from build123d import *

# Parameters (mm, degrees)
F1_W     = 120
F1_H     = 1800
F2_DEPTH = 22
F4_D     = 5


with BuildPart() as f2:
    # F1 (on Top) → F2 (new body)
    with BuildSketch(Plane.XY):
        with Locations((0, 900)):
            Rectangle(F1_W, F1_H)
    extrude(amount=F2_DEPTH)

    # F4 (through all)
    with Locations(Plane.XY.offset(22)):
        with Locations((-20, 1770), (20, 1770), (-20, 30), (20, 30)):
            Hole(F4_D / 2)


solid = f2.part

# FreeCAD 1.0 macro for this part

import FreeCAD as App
import Part
import Sketcher
Q = App.Units.Quantity

doc = App.newDocument("Part")
params = doc.addObject("Spreadsheet::Sheet", "Params")
for row, (alias, value) in enumerate([
    ("sketch1_width", "120 mm"),
    ("sketch1_height", "1800 mm"),
    ("pad1_length", "22 mm"),
    ("sketch2_diameter", "5 mm"),
    ("hole_diameter", "5 mm"),
], start=1):
    params.set(f"A{row}", alias)
    params.set(f"B{row}", "=" + value)
    params.setAlias(f"B{row}", alias)

body = doc.addObject("PartDesign::Body", "Body")

# Sketch on XY plane
sketch1 = doc.addObject("Sketcher::SketchObject", "Sketch")
body.addObject(sketch1)
sketch1.AttachmentSupport = (doc.XY_Plane, [""])
sketch1.MapMode = "FlatFace"
sketch1.addGeometry([
    Part.LineSegment(App.Vector(-60, 1800, 0), App.Vector(-60, 0, 0)),
    Part.LineSegment(App.Vector(-60, 0, 0), App.Vector(60, 0, 0)),
    Part.LineSegment(App.Vector(60, 0, 0), App.Vector(60, 1800, 0)),
    Part.LineSegment(App.Vector(60, 1800, 0), App.Vector(-60, 1800, 0)),
], False)
sketch1.addConstraint([
    Sketcher.Constraint("Coincident", 0, 2, 1, 1),
    Sketcher.Constraint("Coincident", 1, 2, 2, 1),
    Sketcher.Constraint("Coincident", 2, 2, 3, 1),
    Sketcher.Constraint("Coincident", 3, 2, 0, 1),
    Sketcher.Constraint("Vertical", 0),
    Sketcher.Constraint("Horizontal", 1),
    Sketcher.Constraint("Vertical", 2),
    Sketcher.Constraint("Horizontal", 3),
    Sketcher.Constraint("Symmetric", 0, 2, 1, 2, -1, 1),
    Sketcher.Constraint("DistanceX", 1, 1, 1, 2, Q("120 mm")),
    Sketcher.Constraint("DistanceY", 0, 2, 0, 1, Q("1800 mm")),
])
sketch1.setExpression("Constraints[9]", "Params.sketch1_width")
sketch1.setExpression("Constraints[10]", "Params.sketch1_height")
pad1 = doc.addObject("PartDesign::Pad", "Pad")
body.addObject(pad1)
pad1.Profile = sketch1
pad1.setExpression("Length", "Params.pad1_length")

# Sketch on XY plane
sketch2 = doc.addObject("Sketcher::SketchObject", "Sketch001")
body.addObject(sketch2)
sketch2.AttachmentSupport = (doc.XY_Plane, [""])
sketch2.MapMode = "FlatFace"
sketch2.AttachmentOffset = App.Placement(App.Vector(0, 0, 22), App.Rotation())
sketch2.addGeometry([
    Part.Circle(App.Vector(-20, 1770, 0), App.Vector(0, 0, 1), 2.5),
    Part.Circle(App.Vector(20, 1770, 0), App.Vector(0, 0, 1), 2.5),
    Part.Circle(App.Vector(-20, 30, 0), App.Vector(0, 0, 1), 2.5),
    Part.Circle(App.Vector(20, 30, 0), App.Vector(0, 0, 1), 2.5),
], False)
sketch2.addConstraint([
    Sketcher.Constraint("Equal", 0, 1),
    Sketcher.Constraint("Equal", 1, 2),
    Sketcher.Constraint("Equal", 2, 3),
    Sketcher.Constraint("Symmetric", 0, 3, 1, 3, -2),
    Sketcher.Constraint("Symmetric", 2, 3, 3, 3, -2),
    Sketcher.Constraint("Vertical", 0, 3, 2, 3),
    Sketcher.Constraint("Diameter", 0, Q("5 mm")),
    Sketcher.Constraint("DistanceX", 0, 3, -1, 1, Q("20 mm")),
    Sketcher.Constraint("DistanceY", -1, 1, 0, 3, Q("1770 mm")),
    Sketcher.Constraint("DistanceY", -1, 1, 2, 3, Q("30 mm")),
])
sketch2.setExpression("Constraints[6]", "Params.sketch2_diameter")
doc.recompute()
hole = doc.addObject("PartDesign::Hole", "Hole")
body.addObject(hole)
hole.Profile = sketch2
hole.ThreadType = "None"
hole.setExpression("Diameter", "Params.hole_diameter")
hole.DepthType = "ThroughAll"

doc.recompute()
